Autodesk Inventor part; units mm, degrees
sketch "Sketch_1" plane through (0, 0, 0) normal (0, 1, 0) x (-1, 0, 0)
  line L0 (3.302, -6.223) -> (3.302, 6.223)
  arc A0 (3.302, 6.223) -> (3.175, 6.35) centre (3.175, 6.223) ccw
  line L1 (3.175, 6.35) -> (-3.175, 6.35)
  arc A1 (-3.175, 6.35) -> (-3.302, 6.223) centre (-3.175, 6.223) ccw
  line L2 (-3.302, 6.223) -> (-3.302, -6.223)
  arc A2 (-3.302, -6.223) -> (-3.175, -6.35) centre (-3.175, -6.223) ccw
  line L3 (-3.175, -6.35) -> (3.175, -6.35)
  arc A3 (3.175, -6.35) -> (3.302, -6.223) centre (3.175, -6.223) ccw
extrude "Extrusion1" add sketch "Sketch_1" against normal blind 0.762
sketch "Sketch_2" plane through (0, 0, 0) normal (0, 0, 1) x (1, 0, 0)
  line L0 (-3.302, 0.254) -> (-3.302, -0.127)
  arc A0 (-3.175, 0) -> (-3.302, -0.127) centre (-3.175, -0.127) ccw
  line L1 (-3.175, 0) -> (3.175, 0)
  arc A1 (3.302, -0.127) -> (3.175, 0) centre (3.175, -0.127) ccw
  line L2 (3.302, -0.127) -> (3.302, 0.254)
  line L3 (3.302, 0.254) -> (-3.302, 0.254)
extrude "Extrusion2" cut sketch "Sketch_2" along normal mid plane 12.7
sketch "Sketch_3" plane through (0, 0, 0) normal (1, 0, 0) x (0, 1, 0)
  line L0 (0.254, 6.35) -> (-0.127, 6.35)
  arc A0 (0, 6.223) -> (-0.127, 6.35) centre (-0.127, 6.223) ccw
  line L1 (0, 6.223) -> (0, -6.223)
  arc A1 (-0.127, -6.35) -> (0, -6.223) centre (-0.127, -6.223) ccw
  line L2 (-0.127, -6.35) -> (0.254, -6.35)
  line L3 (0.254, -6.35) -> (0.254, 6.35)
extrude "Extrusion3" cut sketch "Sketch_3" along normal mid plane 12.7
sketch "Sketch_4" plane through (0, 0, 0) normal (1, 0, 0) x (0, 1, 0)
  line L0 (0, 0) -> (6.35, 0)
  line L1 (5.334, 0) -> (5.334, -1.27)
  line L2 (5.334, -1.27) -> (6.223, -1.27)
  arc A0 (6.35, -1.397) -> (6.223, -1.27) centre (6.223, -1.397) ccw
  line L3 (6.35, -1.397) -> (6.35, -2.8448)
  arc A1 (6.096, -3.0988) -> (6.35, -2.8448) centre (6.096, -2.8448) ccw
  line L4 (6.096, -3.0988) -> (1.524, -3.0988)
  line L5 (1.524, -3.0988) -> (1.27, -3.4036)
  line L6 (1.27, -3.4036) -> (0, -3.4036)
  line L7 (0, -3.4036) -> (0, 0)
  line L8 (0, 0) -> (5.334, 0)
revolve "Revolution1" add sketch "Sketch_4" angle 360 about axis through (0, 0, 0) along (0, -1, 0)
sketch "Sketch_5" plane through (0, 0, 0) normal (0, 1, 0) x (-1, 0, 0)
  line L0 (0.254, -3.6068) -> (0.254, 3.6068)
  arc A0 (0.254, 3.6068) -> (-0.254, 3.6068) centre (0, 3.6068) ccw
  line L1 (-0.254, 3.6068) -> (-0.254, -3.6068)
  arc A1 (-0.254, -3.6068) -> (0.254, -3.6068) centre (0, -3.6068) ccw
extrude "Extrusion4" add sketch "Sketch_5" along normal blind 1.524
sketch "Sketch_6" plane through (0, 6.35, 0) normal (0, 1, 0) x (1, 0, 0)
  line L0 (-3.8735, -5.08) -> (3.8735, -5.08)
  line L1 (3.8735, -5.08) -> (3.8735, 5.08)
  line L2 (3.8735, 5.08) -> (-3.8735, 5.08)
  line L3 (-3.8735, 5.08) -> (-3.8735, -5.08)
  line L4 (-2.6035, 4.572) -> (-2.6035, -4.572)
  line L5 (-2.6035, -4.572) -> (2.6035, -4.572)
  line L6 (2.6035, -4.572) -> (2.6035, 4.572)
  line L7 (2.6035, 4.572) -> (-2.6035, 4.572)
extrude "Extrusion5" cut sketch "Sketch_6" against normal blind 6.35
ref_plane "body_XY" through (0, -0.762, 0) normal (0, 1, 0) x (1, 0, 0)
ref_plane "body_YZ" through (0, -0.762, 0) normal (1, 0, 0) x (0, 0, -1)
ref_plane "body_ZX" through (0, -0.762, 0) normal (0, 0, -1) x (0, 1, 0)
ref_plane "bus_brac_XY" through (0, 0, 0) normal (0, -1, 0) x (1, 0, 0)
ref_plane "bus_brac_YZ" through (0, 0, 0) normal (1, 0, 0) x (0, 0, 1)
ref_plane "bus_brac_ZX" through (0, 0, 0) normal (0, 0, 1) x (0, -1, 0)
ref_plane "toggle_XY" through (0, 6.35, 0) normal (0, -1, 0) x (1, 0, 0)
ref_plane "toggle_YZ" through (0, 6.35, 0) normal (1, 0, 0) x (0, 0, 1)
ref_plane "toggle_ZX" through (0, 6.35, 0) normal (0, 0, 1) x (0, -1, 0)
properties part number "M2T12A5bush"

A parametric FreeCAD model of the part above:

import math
import FreeCAD as App
import Part
import Sketcher
from FreeCAD import Vector
Q = App.Units.Quantity


def add_polygon(sketch, points):
    """Adds a closed chain of lines whose ends are joined by coincident constraints."""
    first, n = sketch.GeometryCount, len(points)
    for a, b in zip(points, points[1:] + points[:1]):
        sketch.addGeometry(Part.LineSegment(App.Vector(*a, 0), App.Vector(*b, 0)), False)
    for i in range(n):
        sketch.addConstraint(Sketcher.Constraint("Coincident", first + i, 2, first + (i + 1) % n, 1))

doc = App.newDocument("Part")
body = doc.addObject("PartDesign::Body", "Body")

# Sketch on XZ plane
sketch1 = body.newObject("Sketcher::SketchObject", "Sketch")
sketch1.AttachmentSupport = (doc.getObject("XZ_Plane"), [""])
sketch1.MapMode = "FlatFace"
sketch1.addGeometry(Part.ArcOfCircle(Part.Circle(Vector(-3.175, -6.223, 0), Vector(0, 0, 1), 0.127), math.radians(180), math.radians(270)), False)
sketch1.addGeometry(Part.LineSegment(Vector(-3.302, -6.223, 0), Vector(-3.302, 6.223, 0)), False)
sketch1.addGeometry(Part.ArcOfCircle(Part.Circle(Vector(-3.175, 6.223, 0), Vector(0, 0, 1), 0.127), math.radians(90), math.radians(180)), False)
sketch1.addGeometry(Part.LineSegment(Vector(-3.175, 6.35, 0), Vector(3.175, 6.35, 0)), False)
sketch1.addGeometry(Part.ArcOfCircle(Part.Circle(Vector(3.175, 6.223, 0), Vector(0, 0, 1), 0.127), math.radians(0), math.radians(90)), False)
sketch1.addGeometry(Part.LineSegment(Vector(3.302, 6.223, 0), Vector(3.302, -6.223, 0)), False)
sketch1.addGeometry(Part.ArcOfCircle(Part.Circle(Vector(3.175, -6.223, 0), Vector(0, 0, 1), 0.127), math.radians(-90), math.radians(0)), False)
sketch1.addGeometry(Part.LineSegment(Vector(3.175, -6.35, 0), Vector(-3.175, -6.35, 0)), False)
sketch1.addConstraint(Sketcher.Constraint("Tangent", 0, 1, 1, 1))
sketch1.addConstraint(Sketcher.Constraint("Tangent", 1, 2, 2, 2))
sketch1.addConstraint(Sketcher.Constraint("Tangent", 2, 1, 3, 1))
sketch1.addConstraint(Sketcher.Constraint("Tangent", 3, 2, 4, 2))
sketch1.addConstraint(Sketcher.Constraint("Tangent", 4, 1, 5, 1))
sketch1.addConstraint(Sketcher.Constraint("Tangent", 5, 2, 6, 2))
sketch1.addConstraint(Sketcher.Constraint("Tangent", 6, 1, 7, 1))
sketch1.addConstraint(Sketcher.Constraint("Tangent", 7, 2, 0, 2))
sketch1.addConstraint(Sketcher.Constraint("Vertical", 1))
sketch1.addConstraint(Sketcher.Constraint("Horizontal", 3))
sketch1.addConstraint(Sketcher.Constraint("Vertical", 5))
sketch1.addConstraint(Sketcher.Constraint("Horizontal", 7))
sketch1.addConstraint(Sketcher.Constraint("Equal", 0, 2))
sketch1.addConstraint(Sketcher.Constraint("Equal", 2, 4))
sketch1.addConstraint(Sketcher.Constraint("Equal", 4, 6))
sketch1.addConstraint(Sketcher.Constraint("Symmetric", 0, 3, 4, 3, -1, 1))
sketch1.addConstraint(Sketcher.Constraint("Radius", 0, Q("0.005 in")))
sketch1.addConstraint(Sketcher.Constraint("DistanceX", 3, 1, 3, 2, Q("0.25 in")))
sketch1.addConstraint(Sketcher.Constraint("DistanceY", 1, 1, 1, 2, Q("0.49 in")))
pad1 = body.newObject("PartDesign::Pad", "Pad")
pad1.Profile = sketch1
pad1.Length = Q("0.03 in")

# Sketch on XY plane
sketch2 = body.newObject("Sketcher::SketchObject", "Sketch001")
sketch2.AttachmentSupport = (doc.getObject("XY_Plane"), [""])
sketch2.MapMode = "FlatFace"
sketch2.addGeometry(Part.LineSegment(Vector(3.302, 0.254, 0), Vector(-3.302, 0.254, 0)), False)
sketch2.addGeometry(Part.LineSegment(Vector(-3.302, 0.254, 0), Vector(-3.302, -0.127, 0)), False)
sketch2.addGeometry(Part.ArcOfCircle(Part.Circle(Vector(-3.175, -0.127, 0), Vector(0, 0, 1), 0.127), math.radians(90), math.radians(180)), False)
sketch2.addGeometry(Part.LineSegment(Vector(-3.175, 0, 0), Vector(3.175, 0, 0)), False)
sketch2.addGeometry(Part.ArcOfCircle(Part.Circle(Vector(3.175, -0.127, 0), Vector(0, 0, 1), 0.127), math.radians(0), math.radians(90)), False)
sketch2.addGeometry(Part.LineSegment(Vector(3.302, -0.127, 0), Vector(3.302, 0.254, 0)), False)
sketch2.addConstraint(Sketcher.Constraint("Coincident", 0, 2, 1, 1))
sketch2.addConstraint(Sketcher.Constraint("Tangent", 1, 2, 2, 2))
sketch2.addConstraint(Sketcher.Constraint("Tangent", 2, 1, 3, 1))
sketch2.addConstraint(Sketcher.Constraint("Tangent", 3, 2, 4, 2))
sketch2.addConstraint(Sketcher.Constraint("Tangent", 4, 1, 5, 1))
sketch2.addConstraint(Sketcher.Constraint("Coincident", 5, 2, 0, 1))
sketch2.addConstraint(Sketcher.Constraint("Horizontal", 0))
sketch2.addConstraint(Sketcher.Constraint("Vertical", 1))
sketch2.addConstraint(Sketcher.Constraint("Horizontal", 3))
sketch2.addConstraint(Sketcher.Constraint("Vertical", 5))
sketch2.addConstraint(Sketcher.Constraint("Equal", 2, 4))
sketch2.addConstraint(Sketcher.Constraint("Symmetric", 2, 1, 3, 2, -1, 1))
sketch2.addConstraint(Sketcher.Constraint("Radius", 2, Q("0.005 in")))
sketch2.addConstraint(Sketcher.Constraint("DistanceX", 0, 2, 0, 1, Q("0.26 in")))
sketch2.addConstraint(Sketcher.Constraint("DistanceY", 1, 2, 1, 1, Q("0.015 in")))
pocket1 = body.newObject("PartDesign::Pocket", "Pocket")
pocket1.Profile = sketch2
pocket1.Length = Q("0.5 in")
pocket1.Midplane = True

# Sketch on YZ plane
sketch3 = body.newObject("Sketcher::SketchObject", "Sketch002")
sketch3.AttachmentSupport = (doc.getObject("YZ_Plane"), [""])
sketch3.MapMode = "FlatFace"
sketch3.addGeometry(Part.LineSegment(Vector(0.254, -6.35, 0), Vector(0.254, 6.35, 0)), False)
sketch3.addGeometry(Part.LineSegment(Vector(0.254, 6.35, 0), Vector(-0.127, 6.35, 0)), False)
sketch3.addGeometry(Part.ArcOfCircle(Part.Circle(Vector(-0.127, 6.223, 0), Vector(0, 0, 1), 0.127), math.radians(0), math.radians(90)), False)
sketch3.addGeometry(Part.LineSegment(Vector(0, 6.223, 0), Vector(0, -6.223, 0)), False)
sketch3.addGeometry(Part.ArcOfCircle(Part.Circle(Vector(-0.127, -6.223, 0), Vector(0, 0, 1), 0.127), math.radians(-90), math.radians(0)), False)
sketch3.addGeometry(Part.LineSegment(Vector(-0.127, -6.35, 0), Vector(0.254, -6.35, 0)), False)
sketch3.addConstraint(Sketcher.Constraint("Coincident", 0, 2, 1, 1))
sketch3.addConstraint(Sketcher.Constraint("Tangent", 1, 2, 2, 2))
sketch3.addConstraint(Sketcher.Constraint("Tangent", 2, 1, 3, 1))
sketch3.addConstraint(Sketcher.Constraint("Tangent", 3, 2, 4, 2))
sketch3.addConstraint(Sketcher.Constraint("Tangent", 4, 1, 5, 1))
sketch3.addConstraint(Sketcher.Constraint("Coincident", 5, 2, 0, 1))
sketch3.addConstraint(Sketcher.Constraint("Vertical", 0))
sketch3.addConstraint(Sketcher.Constraint("Horizontal", 1))
sketch3.addConstraint(Sketcher.Constraint("Vertical", 3))
sketch3.addConstraint(Sketcher.Constraint("Horizontal", 5))
sketch3.addConstraint(Sketcher.Constraint("Equal", 2, 4))
sketch3.addConstraint(Sketcher.Constraint("Symmetric", 2, 1, 3, 2, -1, 1))
sketch3.addConstraint(Sketcher.Constraint("DistanceY", 0, 1, 0, 2, Q("0.5 in")))
sketch3.addConstraint(Sketcher.Constraint("Radius", 2, Q("0.005 in")))
sketch3.addConstraint(Sketcher.Constraint("DistanceX", 1, 2, 1, 1, Q("0.015 in")))
pocket2 = body.newObject("PartDesign::Pocket", "Pocket001")
pocket2.Profile = sketch3
pocket2.Length = Q("0.5 in")
pocket2.Midplane = True

# Sketch on YZ plane
sketch4 = body.newObject("Sketcher::SketchObject", "Sketch003")
sketch4.AttachmentSupport = (doc.getObject("YZ_Plane"), [""])
sketch4.MapMode = "FlatFace"
sketch4.addGeometry(Part.LineSegment(Vector(5.334, 0, 0), Vector(0, 0, 0)), False)
sketch4.addGeometry(Part.LineSegment(Vector(0, 0, 0), Vector(0, -3.4036, 0)), False)
sketch4.addGeometry(Part.LineSegment(Vector(0, -3.4036, 0), Vector(1.27, -3.4036, 0)), False)
sketch4.addGeometry(Part.LineSegment(Vector(1.27, -3.4036, 0), Vector(1.524, -3.0988, 0)), False)
sketch4.addGeometry(Part.LineSegment(Vector(1.524, -3.0988, 0), Vector(6.096, -3.0988, 0)), False)
sketch4.addGeometry(Part.ArcOfCircle(Part.Circle(Vector(6.096, -2.8448, 0), Vector(0, 0, 1), 0.254), math.radians(-90), math.radians(0)), False)
sketch4.addGeometry(Part.LineSegment(Vector(6.35, -2.8448, 0), Vector(6.35, -1.397, 0)), False)
sketch4.addGeometry(Part.ArcOfCircle(Part.Circle(Vector(6.223, -1.397, 0), Vector(0, 0, 1), 0.127), math.radians(0), math.radians(90)), False)
sketch4.addGeometry(Part.LineSegment(Vector(6.223, -1.27, 0), Vector(5.334, -1.27, 0)), False)
sketch4.addGeometry(Part.LineSegment(Vector(5.334, -1.27, 0), Vector(5.334, 0, 0)), False)
sketch4.addConstraint(Sketcher.Constraint("Coincident", 0, 2, 1, 1))
sketch4.addConstraint(Sketcher.Constraint("Coincident", 1, 2, 2, 1))
sketch4.addConstraint(Sketcher.Constraint("Coincident", 2, 2, 3, 1))
sketch4.addConstraint(Sketcher.Constraint("Coincident", 3, 2, 4, 1))
sketch4.addConstraint(Sketcher.Constraint("Tangent", 4, 2, 5, 1))
sketch4.addConstraint(Sketcher.Constraint("Tangent", 5, 2, 6, 1))
sketch4.addConstraint(Sketcher.Constraint("Tangent", 6, 2, 7, 1))
sketch4.addConstraint(Sketcher.Constraint("Tangent", 7, 2, 8, 1))
sketch4.addConstraint(Sketcher.Constraint("Coincident", 8, 2, 9, 1))
sketch4.addConstraint(Sketcher.Constraint("Coincident", 9, 2, 0, 1))
sketch4.addConstraint(Sketcher.Constraint("Horizontal", 0))
sketch4.addConstraint(Sketcher.Constraint("Vertical", 1))
sketch4.addConstraint(Sketcher.Constraint("Horizontal", 2))
sketch4.addConstraint(Sketcher.Constraint("Horizontal", 4))
sketch4.addConstraint(Sketcher.Constraint("Vertical", 6))
sketch4.addConstraint(Sketcher.Constraint("Horizontal", 8))
sketch4.addConstraint(Sketcher.Constraint("Vertical", 9))
sketch4.addConstraint(Sketcher.Constraint("Coincident", 0, 2, -1, 1))
sketch4.addConstraint(Sketcher.Constraint("Equal", 2, 9))
sketch4.addConstraint(Sketcher.Constraint("Radius", 5, Q("0.01 in")))
sketch4.addConstraint(Sketcher.Constraint("Radius", 7, Q("0.005 in")))
sketch4.addConstraint(Sketcher.Constraint("DistanceX", 0, 2, 0, 1, Q("0.21 in")))
sketch4.addConstraint(Sketcher.Constraint("DistanceX", 2, 1, 2, 2, Q("0.05 in")))
sketch4.addConstraint(Sketcher.Constraint("DistanceX", 4, 1, 4, 2, Q("0.18 in")))
sketch4.addConstraint(Sketcher.Constraint("DistanceX", 2, 2, 5, 2, Q("0.2 in")))
sketch4.addConstraint(Sketcher.Constraint("DistanceY", 1, 2, 1, 1, Q("0.134 in")))
sketch4.addConstraint(Sketcher.Constraint("DistanceY", 6, 1, 6, 2, Q("0.057 in")))
revolution = body.newObject("PartDesign::Revolution", "Revolution")
revolution.Profile = sketch4
revolution.ReferenceAxis = (sketch4, ["H_Axis"])
revolution.Angle = 360

# Sketch on XZ plane
sketch5 = body.newObject("Sketcher::SketchObject", "Sketch004")
sketch5.AttachmentSupport = (doc.getObject("XZ_Plane"), [""])
sketch5.MapMode = "FlatFace"
sketch5.addGeometry(Part.ArcOfCircle(Part.Circle(Vector(0, -3.6068, 0), Vector(0, 0, 1), 0.254), math.radians(180), math.radians(360)), False)
sketch5.addGeometry(Part.LineSegment(Vector(-0.254, -3.6068, 0), Vector(-0.254, 3.6068, 0)), False)
sketch5.addGeometry(Part.ArcOfCircle(Part.Circle(Vector(0, 3.6068, 0), Vector(0, 0, 1), 0.254), math.radians(0), math.radians(180)), False)
sketch5.addGeometry(Part.LineSegment(Vector(0.254, 3.6068, 0), Vector(0.254, -3.6068, 0)), False)
sketch5.addConstraint(Sketcher.Constraint("Tangent", 0, 1, 1, 1))
sketch5.addConstraint(Sketcher.Constraint("Tangent", 1, 2, 2, 2))
sketch5.addConstraint(Sketcher.Constraint("Tangent", 2, 1, 3, 1))
sketch5.addConstraint(Sketcher.Constraint("Tangent", 3, 2, 0, 2))
sketch5.addConstraint(Sketcher.Constraint("Vertical", 1))
sketch5.addConstraint(Sketcher.Constraint("Vertical", 3))
sketch5.addConstraint(Sketcher.Constraint("Symmetric", 0, 3, 2, 3, -1, 1))
sketch5.addConstraint(Sketcher.Constraint("Radius", 0, Q("0.01 in")))
sketch5.addConstraint(Sketcher.Constraint("DistanceY", 1, 1, 1, 2, Q("0.284 in")))
pad2 = body.newObject("PartDesign::Pad", "Pad001")
pad2.Profile = sketch5
pad2.Length = Q("0.06 in")
pad2.Reversed = True

# Sketch on XZ plane
sketch6 = body.newObject("Sketcher::SketchObject", "Sketch005")
sketch6.AttachmentSupport = (doc.getObject("XZ_Plane"), [""])
sketch6.MapMode = "FlatFace"
sketch6.AttachmentOffset = App.Placement(Vector(0, 0, -0.25 * 25.4), App.Rotation())
add_polygon(sketch6, [(-3.8735, -5.08), (-3.8735, 5.08), (3.8735, 5.08), (3.8735, -5.08)])  # lines 0-3
add_polygon(sketch6, [(-2.6035, 4.572), (-2.6035, -4.572), (2.6035, -4.572), (2.6035, 4.572)])  # lines 4-7
sketch6.addConstraint(Sketcher.Constraint("Vertical", 0))
sketch6.addConstraint(Sketcher.Constraint("Horizontal", 1))
sketch6.addConstraint(Sketcher.Constraint("Vertical", 2))
sketch6.addConstraint(Sketcher.Constraint("Horizontal", 3))
sketch6.addConstraint(Sketcher.Constraint("Vertical", 4))
sketch6.addConstraint(Sketcher.Constraint("Horizontal", 5))
sketch6.addConstraint(Sketcher.Constraint("Vertical", 6))
sketch6.addConstraint(Sketcher.Constraint("Horizontal", 7))
sketch6.addConstraint(Sketcher.Constraint("Symmetric", 0, 2, 2, 2, -1, 1))
sketch6.addConstraint(Sketcher.Constraint("Symmetric", 4, 2, 6, 2, -1, 1))
sketch6.addConstraint(Sketcher.Constraint("DistanceY", 0, 1, 0, 2, Q("0.4 in")))
sketch6.addConstraint(Sketcher.Constraint("DistanceY", 4, 2, 4, 1, Q("0.36 in")))
sketch6.addConstraint(Sketcher.Constraint("DistanceX", 1, 1, 1, 2, Q("0.305 in")))
sketch6.addConstraint(Sketcher.Constraint("DistanceX", 5, 1, 5, 2, Q("0.205 in")))
pocket3 = body.newObject("PartDesign::Pocket", "Pocket002")
pocket3.Profile = sketch6
pocket3.Length = Q("0.25 in")
pocket3.Reversed = True

doc.recompute()
